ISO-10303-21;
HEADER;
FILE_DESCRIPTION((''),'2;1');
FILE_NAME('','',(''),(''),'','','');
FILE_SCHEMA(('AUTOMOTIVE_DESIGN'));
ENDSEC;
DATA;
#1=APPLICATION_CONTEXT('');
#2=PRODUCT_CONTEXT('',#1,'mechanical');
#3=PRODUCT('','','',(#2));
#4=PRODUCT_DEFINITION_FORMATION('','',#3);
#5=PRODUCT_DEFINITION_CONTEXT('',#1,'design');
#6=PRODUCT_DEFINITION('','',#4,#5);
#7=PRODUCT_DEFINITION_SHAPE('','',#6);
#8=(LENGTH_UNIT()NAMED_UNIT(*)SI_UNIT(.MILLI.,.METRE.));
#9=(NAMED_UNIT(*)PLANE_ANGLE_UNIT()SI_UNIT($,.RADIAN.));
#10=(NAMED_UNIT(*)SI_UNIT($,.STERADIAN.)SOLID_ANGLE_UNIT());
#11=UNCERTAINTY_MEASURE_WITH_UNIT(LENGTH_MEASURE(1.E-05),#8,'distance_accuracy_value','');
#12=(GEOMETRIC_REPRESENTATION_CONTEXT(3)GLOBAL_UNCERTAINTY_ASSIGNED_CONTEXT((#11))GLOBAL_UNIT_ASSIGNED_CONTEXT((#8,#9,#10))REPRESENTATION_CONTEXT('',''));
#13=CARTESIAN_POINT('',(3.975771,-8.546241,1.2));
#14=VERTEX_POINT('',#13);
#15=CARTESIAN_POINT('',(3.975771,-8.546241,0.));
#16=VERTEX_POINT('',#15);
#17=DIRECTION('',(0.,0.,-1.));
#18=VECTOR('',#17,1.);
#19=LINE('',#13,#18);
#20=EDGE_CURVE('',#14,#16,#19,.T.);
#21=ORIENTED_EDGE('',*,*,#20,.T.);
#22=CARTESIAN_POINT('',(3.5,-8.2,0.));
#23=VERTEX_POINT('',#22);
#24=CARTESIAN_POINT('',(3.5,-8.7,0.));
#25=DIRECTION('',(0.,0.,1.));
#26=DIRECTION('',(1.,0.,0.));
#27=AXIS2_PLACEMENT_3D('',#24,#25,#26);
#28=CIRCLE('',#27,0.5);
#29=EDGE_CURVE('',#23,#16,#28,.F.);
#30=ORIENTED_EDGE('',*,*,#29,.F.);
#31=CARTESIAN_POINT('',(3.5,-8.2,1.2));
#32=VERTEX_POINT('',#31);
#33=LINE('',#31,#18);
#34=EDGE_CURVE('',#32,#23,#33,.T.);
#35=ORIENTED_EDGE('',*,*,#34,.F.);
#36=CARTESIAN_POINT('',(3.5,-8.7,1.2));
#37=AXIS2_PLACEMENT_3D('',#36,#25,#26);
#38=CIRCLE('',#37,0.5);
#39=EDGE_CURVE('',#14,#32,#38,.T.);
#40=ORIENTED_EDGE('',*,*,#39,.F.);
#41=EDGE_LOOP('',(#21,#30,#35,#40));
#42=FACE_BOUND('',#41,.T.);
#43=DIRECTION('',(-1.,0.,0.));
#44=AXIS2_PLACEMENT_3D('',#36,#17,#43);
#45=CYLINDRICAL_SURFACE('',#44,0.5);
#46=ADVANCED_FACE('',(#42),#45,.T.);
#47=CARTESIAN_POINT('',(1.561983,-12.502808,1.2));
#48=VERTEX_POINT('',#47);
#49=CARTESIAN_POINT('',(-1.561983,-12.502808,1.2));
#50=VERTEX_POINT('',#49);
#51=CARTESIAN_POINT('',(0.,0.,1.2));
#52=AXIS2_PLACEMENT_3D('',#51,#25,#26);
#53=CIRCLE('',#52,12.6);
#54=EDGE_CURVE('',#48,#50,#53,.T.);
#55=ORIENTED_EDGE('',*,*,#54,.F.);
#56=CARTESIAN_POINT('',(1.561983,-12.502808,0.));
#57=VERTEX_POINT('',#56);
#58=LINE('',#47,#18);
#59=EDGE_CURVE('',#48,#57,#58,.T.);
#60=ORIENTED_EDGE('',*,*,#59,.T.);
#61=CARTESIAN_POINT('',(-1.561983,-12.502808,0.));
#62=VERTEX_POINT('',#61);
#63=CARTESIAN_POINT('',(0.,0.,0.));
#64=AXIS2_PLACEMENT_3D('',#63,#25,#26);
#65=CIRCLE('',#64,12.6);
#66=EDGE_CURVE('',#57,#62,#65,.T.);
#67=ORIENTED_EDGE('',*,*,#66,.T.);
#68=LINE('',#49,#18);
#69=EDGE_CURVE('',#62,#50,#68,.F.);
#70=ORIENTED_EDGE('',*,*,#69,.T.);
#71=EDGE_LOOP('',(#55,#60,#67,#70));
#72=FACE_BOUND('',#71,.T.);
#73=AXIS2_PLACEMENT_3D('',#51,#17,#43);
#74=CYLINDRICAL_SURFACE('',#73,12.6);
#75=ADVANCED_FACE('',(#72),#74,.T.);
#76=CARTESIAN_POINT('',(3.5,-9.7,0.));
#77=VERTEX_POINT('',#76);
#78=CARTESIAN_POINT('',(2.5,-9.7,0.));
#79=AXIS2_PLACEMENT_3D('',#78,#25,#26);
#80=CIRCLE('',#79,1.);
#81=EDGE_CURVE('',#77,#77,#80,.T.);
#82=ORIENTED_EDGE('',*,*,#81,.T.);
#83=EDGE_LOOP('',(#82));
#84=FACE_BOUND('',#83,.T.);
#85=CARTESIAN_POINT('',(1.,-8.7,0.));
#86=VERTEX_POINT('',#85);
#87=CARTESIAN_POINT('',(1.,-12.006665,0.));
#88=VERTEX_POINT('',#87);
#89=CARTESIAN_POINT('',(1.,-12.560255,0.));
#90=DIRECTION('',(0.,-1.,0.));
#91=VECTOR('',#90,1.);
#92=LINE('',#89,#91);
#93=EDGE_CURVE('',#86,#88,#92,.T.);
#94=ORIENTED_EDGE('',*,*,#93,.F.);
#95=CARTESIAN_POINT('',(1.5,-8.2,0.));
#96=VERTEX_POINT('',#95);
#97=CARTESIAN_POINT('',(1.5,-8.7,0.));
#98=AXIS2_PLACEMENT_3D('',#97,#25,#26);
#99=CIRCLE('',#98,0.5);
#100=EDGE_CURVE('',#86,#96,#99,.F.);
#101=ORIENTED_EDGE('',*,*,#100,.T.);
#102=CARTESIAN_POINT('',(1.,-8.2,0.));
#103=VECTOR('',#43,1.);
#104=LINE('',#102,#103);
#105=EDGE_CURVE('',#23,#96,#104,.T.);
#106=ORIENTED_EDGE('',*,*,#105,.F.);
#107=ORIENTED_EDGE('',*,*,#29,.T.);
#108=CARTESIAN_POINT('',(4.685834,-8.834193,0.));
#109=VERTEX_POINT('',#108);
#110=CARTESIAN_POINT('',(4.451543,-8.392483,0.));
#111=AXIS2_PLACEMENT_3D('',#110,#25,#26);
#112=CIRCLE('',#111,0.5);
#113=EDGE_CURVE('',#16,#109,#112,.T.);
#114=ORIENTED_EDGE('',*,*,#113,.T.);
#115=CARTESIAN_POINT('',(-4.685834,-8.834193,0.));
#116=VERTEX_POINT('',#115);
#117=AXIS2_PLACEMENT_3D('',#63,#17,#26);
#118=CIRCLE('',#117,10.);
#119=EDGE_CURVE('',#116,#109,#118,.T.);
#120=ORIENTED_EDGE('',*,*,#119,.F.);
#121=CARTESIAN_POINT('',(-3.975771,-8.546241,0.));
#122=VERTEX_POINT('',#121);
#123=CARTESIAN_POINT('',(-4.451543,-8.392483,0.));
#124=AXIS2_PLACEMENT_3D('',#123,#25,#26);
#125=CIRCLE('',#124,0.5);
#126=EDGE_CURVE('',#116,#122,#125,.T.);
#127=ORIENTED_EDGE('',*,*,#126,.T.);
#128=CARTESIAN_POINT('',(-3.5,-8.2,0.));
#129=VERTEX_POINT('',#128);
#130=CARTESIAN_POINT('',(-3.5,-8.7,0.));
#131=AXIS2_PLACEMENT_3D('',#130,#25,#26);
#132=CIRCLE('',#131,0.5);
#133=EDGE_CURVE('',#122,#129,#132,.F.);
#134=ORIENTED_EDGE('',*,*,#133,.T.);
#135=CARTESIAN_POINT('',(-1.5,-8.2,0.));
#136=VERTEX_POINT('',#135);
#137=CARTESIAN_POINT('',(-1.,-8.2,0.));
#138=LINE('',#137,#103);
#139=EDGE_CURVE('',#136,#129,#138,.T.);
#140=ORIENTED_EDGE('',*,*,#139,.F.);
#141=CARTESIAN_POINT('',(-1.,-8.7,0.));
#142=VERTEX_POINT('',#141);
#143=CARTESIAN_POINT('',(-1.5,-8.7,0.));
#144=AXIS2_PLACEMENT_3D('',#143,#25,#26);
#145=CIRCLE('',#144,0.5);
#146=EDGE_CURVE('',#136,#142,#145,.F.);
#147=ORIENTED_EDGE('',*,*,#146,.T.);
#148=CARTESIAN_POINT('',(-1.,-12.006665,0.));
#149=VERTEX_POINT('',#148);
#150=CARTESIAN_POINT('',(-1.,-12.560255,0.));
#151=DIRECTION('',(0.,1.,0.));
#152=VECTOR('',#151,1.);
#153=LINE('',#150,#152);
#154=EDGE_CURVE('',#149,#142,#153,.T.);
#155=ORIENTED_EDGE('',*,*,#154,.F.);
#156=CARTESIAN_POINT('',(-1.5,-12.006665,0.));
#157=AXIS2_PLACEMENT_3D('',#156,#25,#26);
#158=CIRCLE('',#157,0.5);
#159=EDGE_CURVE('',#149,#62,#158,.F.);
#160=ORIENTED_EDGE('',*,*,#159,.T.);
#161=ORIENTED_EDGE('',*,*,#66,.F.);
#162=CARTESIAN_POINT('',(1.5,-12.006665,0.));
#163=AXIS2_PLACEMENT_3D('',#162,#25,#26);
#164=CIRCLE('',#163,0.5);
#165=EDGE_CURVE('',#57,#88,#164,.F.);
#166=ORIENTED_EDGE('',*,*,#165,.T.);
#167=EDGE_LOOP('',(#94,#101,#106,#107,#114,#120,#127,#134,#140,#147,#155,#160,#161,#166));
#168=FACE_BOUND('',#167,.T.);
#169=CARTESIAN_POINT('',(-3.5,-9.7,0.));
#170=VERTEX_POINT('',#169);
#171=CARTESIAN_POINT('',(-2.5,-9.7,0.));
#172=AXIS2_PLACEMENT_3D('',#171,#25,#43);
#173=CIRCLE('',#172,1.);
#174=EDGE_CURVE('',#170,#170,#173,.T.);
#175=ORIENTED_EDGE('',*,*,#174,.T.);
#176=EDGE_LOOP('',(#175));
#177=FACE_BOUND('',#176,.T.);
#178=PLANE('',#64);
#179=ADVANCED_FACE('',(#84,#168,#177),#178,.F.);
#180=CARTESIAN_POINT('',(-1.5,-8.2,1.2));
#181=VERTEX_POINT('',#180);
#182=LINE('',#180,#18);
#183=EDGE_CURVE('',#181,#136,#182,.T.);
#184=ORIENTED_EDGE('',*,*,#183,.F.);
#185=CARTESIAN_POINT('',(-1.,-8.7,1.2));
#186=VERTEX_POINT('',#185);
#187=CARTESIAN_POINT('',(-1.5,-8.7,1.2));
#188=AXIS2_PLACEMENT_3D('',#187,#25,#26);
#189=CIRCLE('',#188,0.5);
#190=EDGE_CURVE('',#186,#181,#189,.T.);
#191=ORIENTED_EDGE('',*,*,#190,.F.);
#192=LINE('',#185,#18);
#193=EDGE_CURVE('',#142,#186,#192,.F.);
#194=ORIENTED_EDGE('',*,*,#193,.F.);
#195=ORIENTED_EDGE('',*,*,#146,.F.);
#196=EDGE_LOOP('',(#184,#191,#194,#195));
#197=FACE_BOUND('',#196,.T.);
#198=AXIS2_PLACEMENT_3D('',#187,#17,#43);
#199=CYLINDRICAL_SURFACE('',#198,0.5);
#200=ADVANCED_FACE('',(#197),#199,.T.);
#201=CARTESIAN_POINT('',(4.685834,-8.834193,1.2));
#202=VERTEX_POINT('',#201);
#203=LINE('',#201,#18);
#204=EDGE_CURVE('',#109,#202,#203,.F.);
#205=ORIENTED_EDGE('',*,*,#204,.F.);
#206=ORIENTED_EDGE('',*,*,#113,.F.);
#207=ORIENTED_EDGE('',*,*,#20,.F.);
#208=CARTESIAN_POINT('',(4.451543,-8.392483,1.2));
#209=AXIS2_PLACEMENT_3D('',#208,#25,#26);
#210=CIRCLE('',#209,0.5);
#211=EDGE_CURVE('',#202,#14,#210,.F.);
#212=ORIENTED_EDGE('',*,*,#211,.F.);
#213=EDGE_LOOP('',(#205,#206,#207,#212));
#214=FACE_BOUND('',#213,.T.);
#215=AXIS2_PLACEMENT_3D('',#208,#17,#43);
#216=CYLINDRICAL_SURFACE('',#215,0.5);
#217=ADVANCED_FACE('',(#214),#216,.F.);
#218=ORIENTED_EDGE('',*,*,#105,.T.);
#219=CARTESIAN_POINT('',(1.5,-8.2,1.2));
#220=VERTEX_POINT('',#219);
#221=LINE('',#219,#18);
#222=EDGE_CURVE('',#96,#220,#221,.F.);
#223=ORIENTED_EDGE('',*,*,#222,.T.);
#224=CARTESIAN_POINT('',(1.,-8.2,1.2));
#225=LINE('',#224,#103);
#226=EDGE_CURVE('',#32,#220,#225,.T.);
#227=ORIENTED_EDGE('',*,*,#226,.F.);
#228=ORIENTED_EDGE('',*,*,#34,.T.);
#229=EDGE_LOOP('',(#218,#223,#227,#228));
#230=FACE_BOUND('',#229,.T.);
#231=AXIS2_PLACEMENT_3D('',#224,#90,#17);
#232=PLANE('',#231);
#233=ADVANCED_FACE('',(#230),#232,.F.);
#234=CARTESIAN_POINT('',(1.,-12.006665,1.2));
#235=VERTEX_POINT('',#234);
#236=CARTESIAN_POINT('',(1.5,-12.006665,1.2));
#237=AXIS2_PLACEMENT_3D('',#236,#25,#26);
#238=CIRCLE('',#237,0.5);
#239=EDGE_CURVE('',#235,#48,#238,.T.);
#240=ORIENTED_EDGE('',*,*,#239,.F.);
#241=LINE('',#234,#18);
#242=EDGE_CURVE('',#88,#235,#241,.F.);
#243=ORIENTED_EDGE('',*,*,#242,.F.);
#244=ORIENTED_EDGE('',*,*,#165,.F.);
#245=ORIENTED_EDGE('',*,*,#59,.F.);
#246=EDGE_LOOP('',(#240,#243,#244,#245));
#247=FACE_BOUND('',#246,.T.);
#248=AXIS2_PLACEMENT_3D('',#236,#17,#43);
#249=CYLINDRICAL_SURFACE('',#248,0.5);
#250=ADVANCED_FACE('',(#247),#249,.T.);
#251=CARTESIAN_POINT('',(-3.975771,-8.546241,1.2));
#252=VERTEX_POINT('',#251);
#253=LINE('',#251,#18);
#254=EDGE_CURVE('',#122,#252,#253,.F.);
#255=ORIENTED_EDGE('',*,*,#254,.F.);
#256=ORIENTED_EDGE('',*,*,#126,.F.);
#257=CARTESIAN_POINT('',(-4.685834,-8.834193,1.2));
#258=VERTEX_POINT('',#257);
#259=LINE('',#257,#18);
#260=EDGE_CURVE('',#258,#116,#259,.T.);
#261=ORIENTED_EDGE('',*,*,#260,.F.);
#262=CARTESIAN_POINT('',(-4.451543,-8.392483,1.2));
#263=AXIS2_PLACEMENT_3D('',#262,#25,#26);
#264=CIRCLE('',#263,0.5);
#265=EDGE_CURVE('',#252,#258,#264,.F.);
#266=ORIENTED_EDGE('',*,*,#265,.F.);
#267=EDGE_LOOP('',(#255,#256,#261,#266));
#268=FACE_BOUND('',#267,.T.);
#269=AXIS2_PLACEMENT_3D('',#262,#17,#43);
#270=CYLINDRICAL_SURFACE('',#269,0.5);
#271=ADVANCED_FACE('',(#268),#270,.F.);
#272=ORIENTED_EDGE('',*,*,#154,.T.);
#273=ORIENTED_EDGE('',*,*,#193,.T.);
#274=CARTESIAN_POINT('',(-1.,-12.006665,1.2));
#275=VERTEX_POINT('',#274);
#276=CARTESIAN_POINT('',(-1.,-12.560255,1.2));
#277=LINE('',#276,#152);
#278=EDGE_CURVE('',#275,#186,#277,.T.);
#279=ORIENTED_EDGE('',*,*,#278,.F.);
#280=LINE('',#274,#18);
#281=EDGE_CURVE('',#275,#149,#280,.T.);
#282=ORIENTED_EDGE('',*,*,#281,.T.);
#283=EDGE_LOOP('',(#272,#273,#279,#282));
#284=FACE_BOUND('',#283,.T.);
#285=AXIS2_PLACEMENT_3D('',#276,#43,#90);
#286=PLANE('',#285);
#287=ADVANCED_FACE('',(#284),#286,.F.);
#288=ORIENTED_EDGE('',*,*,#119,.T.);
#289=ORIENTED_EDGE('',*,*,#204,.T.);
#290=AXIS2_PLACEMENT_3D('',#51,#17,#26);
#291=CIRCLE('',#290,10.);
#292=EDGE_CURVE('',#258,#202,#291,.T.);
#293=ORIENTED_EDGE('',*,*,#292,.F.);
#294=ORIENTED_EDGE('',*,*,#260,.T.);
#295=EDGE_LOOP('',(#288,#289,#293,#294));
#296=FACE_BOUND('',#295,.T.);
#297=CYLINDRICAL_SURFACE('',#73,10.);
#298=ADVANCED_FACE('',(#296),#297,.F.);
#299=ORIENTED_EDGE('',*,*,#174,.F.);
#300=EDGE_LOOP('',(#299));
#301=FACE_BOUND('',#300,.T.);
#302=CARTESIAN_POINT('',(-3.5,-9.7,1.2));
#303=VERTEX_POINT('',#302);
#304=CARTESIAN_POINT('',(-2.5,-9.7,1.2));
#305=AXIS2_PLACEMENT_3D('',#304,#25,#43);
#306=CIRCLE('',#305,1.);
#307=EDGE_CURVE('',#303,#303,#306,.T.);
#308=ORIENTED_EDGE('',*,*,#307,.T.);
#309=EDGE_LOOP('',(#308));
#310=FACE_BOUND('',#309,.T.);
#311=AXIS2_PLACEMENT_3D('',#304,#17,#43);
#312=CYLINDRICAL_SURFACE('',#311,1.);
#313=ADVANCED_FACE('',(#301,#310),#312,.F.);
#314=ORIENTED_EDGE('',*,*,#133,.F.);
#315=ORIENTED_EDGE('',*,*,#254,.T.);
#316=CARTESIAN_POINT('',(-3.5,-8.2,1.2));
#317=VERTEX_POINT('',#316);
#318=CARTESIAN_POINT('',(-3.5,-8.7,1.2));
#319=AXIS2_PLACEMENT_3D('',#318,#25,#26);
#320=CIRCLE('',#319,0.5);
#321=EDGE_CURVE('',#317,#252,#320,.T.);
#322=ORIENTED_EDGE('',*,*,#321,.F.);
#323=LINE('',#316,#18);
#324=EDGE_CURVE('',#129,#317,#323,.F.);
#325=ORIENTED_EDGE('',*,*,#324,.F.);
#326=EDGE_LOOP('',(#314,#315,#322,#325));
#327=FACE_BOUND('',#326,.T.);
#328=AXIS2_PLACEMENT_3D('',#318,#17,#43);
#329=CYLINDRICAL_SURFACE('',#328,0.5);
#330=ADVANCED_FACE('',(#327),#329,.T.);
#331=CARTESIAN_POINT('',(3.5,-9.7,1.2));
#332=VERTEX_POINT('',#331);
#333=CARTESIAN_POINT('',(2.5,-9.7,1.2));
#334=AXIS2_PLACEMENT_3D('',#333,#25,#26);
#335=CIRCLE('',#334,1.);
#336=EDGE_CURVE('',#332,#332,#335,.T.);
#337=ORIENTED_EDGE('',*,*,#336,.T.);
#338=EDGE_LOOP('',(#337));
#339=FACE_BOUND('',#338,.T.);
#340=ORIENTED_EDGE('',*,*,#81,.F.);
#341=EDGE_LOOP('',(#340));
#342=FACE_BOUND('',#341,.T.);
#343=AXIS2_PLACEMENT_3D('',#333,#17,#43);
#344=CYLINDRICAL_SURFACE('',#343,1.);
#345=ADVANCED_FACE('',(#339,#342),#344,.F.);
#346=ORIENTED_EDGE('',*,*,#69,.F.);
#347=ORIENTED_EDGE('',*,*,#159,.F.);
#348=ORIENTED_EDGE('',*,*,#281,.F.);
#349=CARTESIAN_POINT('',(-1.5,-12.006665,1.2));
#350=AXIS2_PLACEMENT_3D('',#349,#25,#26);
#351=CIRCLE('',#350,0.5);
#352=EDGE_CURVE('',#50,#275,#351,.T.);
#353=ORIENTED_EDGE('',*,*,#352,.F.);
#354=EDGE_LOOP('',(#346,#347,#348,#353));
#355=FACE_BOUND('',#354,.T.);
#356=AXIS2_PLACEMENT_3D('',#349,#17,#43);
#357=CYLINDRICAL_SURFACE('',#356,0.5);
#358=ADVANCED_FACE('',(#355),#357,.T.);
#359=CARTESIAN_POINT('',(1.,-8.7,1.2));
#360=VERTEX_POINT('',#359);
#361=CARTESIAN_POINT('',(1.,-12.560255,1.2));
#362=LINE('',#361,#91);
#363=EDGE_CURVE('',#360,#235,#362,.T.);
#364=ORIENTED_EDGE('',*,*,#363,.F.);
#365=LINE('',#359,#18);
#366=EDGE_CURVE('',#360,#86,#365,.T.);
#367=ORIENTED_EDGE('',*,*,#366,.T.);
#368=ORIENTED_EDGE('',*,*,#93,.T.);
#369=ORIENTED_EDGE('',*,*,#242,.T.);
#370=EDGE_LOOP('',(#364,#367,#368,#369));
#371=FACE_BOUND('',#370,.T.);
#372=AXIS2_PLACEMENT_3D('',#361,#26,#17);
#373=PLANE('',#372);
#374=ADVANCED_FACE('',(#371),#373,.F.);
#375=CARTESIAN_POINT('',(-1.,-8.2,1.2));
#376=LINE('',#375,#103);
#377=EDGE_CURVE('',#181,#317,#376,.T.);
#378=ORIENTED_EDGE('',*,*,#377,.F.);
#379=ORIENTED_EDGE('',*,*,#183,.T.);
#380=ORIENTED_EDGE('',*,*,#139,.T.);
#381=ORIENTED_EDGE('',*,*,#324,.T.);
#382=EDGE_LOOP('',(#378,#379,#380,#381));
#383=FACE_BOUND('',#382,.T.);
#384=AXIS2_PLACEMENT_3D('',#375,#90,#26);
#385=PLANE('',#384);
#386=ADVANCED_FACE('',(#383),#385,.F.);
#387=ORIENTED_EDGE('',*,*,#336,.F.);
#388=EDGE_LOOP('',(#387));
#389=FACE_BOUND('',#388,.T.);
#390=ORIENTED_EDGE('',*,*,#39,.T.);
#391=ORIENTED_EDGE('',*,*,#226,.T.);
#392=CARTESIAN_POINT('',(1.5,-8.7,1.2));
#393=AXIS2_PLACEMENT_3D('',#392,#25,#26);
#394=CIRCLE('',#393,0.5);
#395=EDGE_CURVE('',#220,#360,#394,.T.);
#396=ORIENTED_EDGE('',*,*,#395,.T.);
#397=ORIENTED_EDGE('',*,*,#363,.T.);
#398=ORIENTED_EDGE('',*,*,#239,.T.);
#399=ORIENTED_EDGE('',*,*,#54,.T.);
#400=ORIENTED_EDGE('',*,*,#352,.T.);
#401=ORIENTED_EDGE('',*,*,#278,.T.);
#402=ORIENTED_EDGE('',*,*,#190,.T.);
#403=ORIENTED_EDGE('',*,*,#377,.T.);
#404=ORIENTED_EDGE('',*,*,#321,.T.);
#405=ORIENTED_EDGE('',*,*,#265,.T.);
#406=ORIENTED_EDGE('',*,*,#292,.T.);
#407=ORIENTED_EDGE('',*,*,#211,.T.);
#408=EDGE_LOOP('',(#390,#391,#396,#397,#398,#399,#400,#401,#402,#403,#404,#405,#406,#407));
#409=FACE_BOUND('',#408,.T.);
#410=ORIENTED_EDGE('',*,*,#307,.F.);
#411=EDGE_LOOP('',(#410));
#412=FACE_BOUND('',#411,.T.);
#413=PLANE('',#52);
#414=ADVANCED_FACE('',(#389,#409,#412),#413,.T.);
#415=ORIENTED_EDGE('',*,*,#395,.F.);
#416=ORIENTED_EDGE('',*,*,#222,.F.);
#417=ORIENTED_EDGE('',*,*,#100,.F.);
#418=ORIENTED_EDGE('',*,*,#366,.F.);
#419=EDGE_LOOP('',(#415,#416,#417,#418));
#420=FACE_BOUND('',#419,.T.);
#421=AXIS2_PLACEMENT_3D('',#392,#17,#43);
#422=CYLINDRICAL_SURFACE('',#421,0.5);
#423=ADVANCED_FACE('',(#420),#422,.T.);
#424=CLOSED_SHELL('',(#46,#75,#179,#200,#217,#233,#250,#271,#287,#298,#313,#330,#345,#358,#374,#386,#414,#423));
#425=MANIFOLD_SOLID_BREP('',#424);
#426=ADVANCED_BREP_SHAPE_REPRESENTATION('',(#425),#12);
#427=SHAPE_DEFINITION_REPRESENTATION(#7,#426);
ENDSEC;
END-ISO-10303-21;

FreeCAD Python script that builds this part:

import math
import FreeCAD as App
import Part
import Sketcher

V = App.Vector


def edges_at(feature, points):
    """Names of the edges that pass closest to the given points."""
    edges = feature.Shape.Edges
    near = lambda p: min(range(len(edges)), key=lambda i: edges[i].distToShape(Part.Vertex(*p))[0])
    return sorted({f"Edge{near(p) + 1}" for p in points})

doc = App.newDocument("Part")
params = doc.addObject("Spreadsheet::Sheet", "Params")
for row, (alias, value) in enumerate([
    ("sketch1_diameter", "2 mm"),
    ("sketch1_radius", "10 mm"),
    ("sketch1_radius2", "12.6 mm"),
    ("sketch1_width", "3 mm"),
    ("pad1_length", "1.2 mm"),
    ("fillet_radius", "0.5 mm"),
    ("fillet2_radius", "0.5 mm"),
    ("fillet3_radius", "0.5 mm"),
    ("fillet4_radius", "0.5 mm"),
    ("fillet5_radius", "0.5 mm"),
    ("fillet6_radius", "0.5 mm"),
    ("fillet7_radius", "0.5 mm"),
    ("fillet8_radius", "0.5 mm"),
], start=1):
    params.set(f"A{row}", alias)
    params.set(f"B{row}", "=" + value)
    params.setAlias(f"B{row}", alias)

body = doc.addObject("PartDesign::Body", "Body")

sketch1 = body.newObject("Sketcher::SketchObject", "Sketch")
sketch1.AttachmentSupport = (doc.getObject("XY_Plane"), [""])
sketch1.MapMode = "FlatFace"
sketch1.addGeometry(Part.LineSegment(V(-1, -12.6, 0), V(-1, -8.2, 0)), False)
sketch1.addGeometry(Part.LineSegment(V(-1, -8.2, 0), V(-4, -8.2, 0)), False)
sketch1.addGeometry(Part.LineSegment(V(-4, -8.2, 0), V(-4, -9.2, 0)), False)
sketch1.addGeometry(Part.ArcOfCircle(Part.Circle(V(0, 0, 0), V(0, 0, 1), 10), math.radians(-66), math.radians(246)), False)
sketch1.addGeometry(Part.LineSegment(V(4, -9.2, 0), V(4, -8.2, 0)), False)
sketch1.addGeometry(Part.LineSegment(V(4, -8.2, 0), V(1, -8.2, 0)), False)
sketch1.addGeometry(Part.LineSegment(V(1, -8.2, 0), V(1, -12.6, 0)), False)
sketch1.addGeometry(Part.ArcOfCircle(Part.Circle(V(0, 0, 0), V(0, 0, 1), 12.6), math.radians(-85), math.radians(265)), False)
sketch1.addGeometry(Part.Circle(V(-2.5, -9.7, 0), V(0, 0, 1), 1), False)
sketch1.addGeometry(Part.Circle(V(2.5, -9.7, 0), V(0, 0, 1), 1), False)
sketch1.addConstraint(Sketcher.Constraint("Coincident", 0, 2, 1, 1))
sketch1.addConstraint(Sketcher.Constraint("Coincident", 1, 2, 2, 1))
sketch1.addConstraint(Sketcher.Constraint("Coincident", 2, 2, 3, 2))
sketch1.addConstraint(Sketcher.Constraint("Coincident", 3, 1, 4, 1))
sketch1.addConstraint(Sketcher.Constraint("Coincident", 4, 2, 5, 1))
sketch1.addConstraint(Sketcher.Constraint("Coincident", 5, 2, 6, 1))
sketch1.addConstraint(Sketcher.Constraint("Coincident", 6, 2, 7, 1))
sketch1.addConstraint(Sketcher.Constraint("Coincident", 7, 2, 0, 1))
sketch1.addConstraint(Sketcher.Constraint("Vertical", 0))
sketch1.addConstraint(Sketcher.Constraint("Horizontal", 1))
sketch1.addConstraint(Sketcher.Constraint("Vertical", 2))
sketch1.addConstraint(Sketcher.Constraint("Vertical", 4))
sketch1.addConstraint(Sketcher.Constraint("Horizontal", 5))
sketch1.addConstraint(Sketcher.Constraint("Vertical", 6))
sketch1.addConstraint(Sketcher.Constraint("Coincident", 3, 3, -1, 1))
sketch1.addConstraint(Sketcher.Constraint("Coincident", 7, 3, -1, 1))
sketch1.addConstraint(Sketcher.Constraint("Equal", 8, 9))
sketch1.addConstraint(Sketcher.Constraint("Symmetric", 8, 3, 9, 3, -2))
sketch1.addConstraint(Sketcher.Constraint("Symmetric", 1, 2, 4, 2, -2))
sketch1.addConstraint(Sketcher.Constraint("Horizontal", 6, 2, 7, 2))
sketch1.addConstraint(Sketcher.Constraint("Diameter", 8, 2.0))
sketch1.addConstraint(Sketcher.Constraint("Radius", 3, 10.0))
sketch1.addConstraint(Sketcher.Constraint("Radius", 7, 12.6))
sketch1.addConstraint(Sketcher.Constraint("DistanceX", 1, 2, 1, 1, 3.0))
sketch1.addConstraint(Sketcher.Constraint("DistanceX", 0, 2, -1, 1, 1.0))
sketch1.addConstraint(Sketcher.Constraint("DistanceX", 8, 3, 9, 3, 5.0))
sketch1.addConstraint(Sketcher.Constraint("DistanceY", 8, 3, -1, 1, 9.7))
sketch1.addConstraint(Sketcher.Constraint("DistanceY", 0, 2, -1, 1, 8.2))
sketch1.setExpression("Constraints[20]", "Params.sketch1_diameter")
sketch1.setExpression("Constraints[21]", "Params.sketch1_radius")
sketch1.setExpression("Constraints[22]", "Params.sketch1_radius2")
sketch1.setExpression("Constraints[23]", "Params.sketch1_width")
pad1 = body.newObject("PartDesign::Pad", "Pad")
pad1.Profile = sketch1
pad1.setExpression("Length", "Params.pad1_length")
doc.recompute()

fillet = body.newObject("PartDesign::Fillet", "Fillet")
fillet.Base = (pad1, edges_at(pad1, [(1, -12.56, 0.6)]))
fillet.setExpression("Radius", "Params.fillet_radius")
doc.recompute()

fillet2 = body.newObject("PartDesign::Fillet", "Fillet001")
fillet2.Base = (fillet, edges_at(fillet, [(-1, -12.56, 0.6)]))
fillet2.setExpression("Radius", "Params.fillet2_radius")
doc.recompute()

fillet3 = body.newObject("PartDesign::Fillet", "Fillet002")
fillet3.Base = (fillet2, edges_at(fillet2, [(1, -8.2, 0.6)]))
fillet3.setExpression("Radius", "Params.fillet3_radius")
doc.recompute()

fillet4 = body.newObject("PartDesign::Fillet", "Fillet003")
fillet4.Base = (fillet3, edges_at(fillet3, [(4, -8.2, 0.6)]))
fillet4.setExpression("Radius", "Params.fillet4_radius")
doc.recompute()

fillet5 = body.newObject("PartDesign::Fillet", "Fillet004")
fillet5.Base = (fillet4, edges_at(fillet4, [(4, -9.165, 0.6)]))
fillet5.setExpression("Radius", "Params.fillet5_radius")
doc.recompute()

fillet6 = body.newObject("PartDesign::Fillet", "Fillet005")
fillet6.Base = (fillet5, edges_at(fillet5, [(-4, -8.2, 0.6)]))
fillet6.setExpression("Radius", "Params.fillet6_radius")
doc.recompute()

fillet7 = body.newObject("PartDesign::Fillet", "Fillet006")
fillet7.Base = (fillet6, edges_at(fillet6, [(-1, -8.2, 0.6)]))
fillet7.setExpression("Radius", "Params.fillet7_radius")
doc.recompute()

fillet8 = body.newObject("PartDesign::Fillet", "Fillet007")
fillet8.Base = (fillet7, edges_at(fillet7, [(-4, -9.165, 0.6)]))
fillet8.setExpression("Radius", "Params.fillet8_radius")

doc.recompute()
